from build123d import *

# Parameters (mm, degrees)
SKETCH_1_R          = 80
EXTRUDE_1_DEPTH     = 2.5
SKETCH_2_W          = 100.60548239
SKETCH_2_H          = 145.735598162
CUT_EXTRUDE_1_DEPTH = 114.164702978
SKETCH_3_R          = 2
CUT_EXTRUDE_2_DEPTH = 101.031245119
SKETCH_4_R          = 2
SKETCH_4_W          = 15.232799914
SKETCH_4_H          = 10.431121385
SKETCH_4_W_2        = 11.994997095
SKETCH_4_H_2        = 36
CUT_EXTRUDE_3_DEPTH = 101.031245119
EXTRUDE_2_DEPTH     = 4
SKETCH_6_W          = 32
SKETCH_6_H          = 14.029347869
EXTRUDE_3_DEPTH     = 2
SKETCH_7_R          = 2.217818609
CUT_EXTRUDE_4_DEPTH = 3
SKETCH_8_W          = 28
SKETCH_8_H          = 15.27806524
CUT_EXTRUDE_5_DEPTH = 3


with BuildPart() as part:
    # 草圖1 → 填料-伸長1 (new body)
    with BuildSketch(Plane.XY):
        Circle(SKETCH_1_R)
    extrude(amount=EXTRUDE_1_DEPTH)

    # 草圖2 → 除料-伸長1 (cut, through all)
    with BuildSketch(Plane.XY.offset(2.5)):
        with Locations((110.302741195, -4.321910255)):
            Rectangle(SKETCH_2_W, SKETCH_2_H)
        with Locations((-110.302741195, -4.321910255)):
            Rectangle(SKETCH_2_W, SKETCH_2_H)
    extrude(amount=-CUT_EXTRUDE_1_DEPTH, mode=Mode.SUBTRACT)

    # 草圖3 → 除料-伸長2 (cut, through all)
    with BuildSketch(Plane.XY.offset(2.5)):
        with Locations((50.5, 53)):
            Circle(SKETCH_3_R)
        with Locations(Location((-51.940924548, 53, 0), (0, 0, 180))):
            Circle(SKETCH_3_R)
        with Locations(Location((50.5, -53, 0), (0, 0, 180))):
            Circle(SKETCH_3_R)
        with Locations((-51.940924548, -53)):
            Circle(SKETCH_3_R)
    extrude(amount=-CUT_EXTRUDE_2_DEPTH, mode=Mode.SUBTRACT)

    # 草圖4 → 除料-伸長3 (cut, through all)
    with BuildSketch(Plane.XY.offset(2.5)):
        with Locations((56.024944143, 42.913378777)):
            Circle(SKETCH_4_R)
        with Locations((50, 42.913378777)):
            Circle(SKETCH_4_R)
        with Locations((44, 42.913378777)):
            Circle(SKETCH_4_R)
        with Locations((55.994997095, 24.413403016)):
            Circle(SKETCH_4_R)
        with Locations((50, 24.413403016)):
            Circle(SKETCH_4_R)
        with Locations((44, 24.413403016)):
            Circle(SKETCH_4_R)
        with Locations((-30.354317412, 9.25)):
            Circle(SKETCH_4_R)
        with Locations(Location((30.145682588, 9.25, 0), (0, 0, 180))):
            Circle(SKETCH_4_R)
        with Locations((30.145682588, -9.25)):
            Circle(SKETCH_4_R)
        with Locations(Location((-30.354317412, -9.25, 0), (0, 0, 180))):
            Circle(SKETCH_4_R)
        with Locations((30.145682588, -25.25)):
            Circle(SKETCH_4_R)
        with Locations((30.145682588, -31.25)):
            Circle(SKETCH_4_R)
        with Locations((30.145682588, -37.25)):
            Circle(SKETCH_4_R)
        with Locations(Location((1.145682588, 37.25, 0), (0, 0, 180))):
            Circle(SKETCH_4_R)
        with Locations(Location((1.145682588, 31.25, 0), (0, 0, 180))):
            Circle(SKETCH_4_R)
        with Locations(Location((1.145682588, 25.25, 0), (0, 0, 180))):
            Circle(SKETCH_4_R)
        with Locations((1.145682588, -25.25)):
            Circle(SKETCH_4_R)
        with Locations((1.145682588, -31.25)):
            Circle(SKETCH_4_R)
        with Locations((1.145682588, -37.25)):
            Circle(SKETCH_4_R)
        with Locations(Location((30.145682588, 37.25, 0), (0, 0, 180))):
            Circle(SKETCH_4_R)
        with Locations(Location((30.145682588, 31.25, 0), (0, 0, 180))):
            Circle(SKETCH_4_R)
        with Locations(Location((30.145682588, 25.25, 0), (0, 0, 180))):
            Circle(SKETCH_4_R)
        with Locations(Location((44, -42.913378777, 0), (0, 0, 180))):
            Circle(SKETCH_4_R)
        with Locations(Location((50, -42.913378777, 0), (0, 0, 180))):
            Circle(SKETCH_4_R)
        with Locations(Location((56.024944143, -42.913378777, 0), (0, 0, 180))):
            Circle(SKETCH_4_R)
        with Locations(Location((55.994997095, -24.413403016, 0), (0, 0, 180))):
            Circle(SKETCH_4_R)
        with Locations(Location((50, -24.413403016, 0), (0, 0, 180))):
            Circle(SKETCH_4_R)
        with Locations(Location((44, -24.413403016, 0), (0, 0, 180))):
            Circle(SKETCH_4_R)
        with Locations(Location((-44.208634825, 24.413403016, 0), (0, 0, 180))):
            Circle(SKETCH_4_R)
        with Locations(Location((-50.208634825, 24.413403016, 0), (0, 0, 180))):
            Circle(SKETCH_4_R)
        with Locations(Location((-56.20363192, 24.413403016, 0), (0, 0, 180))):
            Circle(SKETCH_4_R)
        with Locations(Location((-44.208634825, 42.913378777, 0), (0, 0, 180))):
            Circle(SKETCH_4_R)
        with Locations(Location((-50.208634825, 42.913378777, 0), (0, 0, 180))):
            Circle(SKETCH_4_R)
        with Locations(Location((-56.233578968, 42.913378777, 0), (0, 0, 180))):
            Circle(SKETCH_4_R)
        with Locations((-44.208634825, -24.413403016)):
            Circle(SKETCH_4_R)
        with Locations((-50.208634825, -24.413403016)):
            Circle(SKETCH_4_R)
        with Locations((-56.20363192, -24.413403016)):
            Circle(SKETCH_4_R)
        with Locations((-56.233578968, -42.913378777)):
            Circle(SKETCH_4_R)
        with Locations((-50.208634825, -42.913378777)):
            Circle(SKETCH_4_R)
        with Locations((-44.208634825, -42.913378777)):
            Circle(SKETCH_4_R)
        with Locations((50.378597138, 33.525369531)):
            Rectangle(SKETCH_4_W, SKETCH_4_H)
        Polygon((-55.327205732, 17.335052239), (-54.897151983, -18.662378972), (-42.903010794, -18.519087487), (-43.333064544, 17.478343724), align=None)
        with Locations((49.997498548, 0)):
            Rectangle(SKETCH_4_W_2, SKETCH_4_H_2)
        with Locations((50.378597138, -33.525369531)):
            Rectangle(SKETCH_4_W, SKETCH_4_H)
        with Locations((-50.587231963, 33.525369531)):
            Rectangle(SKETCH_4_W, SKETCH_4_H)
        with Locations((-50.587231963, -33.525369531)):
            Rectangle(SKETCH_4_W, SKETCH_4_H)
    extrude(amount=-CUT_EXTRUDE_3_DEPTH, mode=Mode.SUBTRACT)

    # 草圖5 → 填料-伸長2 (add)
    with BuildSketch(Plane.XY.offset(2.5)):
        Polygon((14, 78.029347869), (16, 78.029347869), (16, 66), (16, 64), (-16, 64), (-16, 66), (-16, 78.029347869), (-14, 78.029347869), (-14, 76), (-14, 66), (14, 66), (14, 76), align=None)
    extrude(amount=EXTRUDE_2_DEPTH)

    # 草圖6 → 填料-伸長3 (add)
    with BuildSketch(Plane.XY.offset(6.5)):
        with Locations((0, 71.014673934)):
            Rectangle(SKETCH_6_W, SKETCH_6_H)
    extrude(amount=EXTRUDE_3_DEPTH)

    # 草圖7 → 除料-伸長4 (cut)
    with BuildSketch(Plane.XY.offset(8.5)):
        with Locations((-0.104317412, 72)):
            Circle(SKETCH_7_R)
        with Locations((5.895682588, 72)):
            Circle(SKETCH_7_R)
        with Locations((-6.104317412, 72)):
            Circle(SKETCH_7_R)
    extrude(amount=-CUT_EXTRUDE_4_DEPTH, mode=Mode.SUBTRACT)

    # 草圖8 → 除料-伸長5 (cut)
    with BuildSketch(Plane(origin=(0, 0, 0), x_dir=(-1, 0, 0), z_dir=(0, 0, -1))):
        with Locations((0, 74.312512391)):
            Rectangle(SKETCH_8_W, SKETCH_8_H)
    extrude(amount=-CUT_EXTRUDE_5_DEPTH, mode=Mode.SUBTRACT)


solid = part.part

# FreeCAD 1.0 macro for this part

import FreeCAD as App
import Part
import Sketcher
Q = App.Units.Quantity

doc = App.newDocument("Part")
body = doc.addObject("PartDesign::Body", "Body")

# Sketch on XY plane
sketch1 = doc.addObject("Sketcher::SketchObject", "Sketch")
body.addObject(sketch1)
sketch1.AttachmentSupport = (doc.XY_Plane, [""])
sketch1.MapMode = "FlatFace"
sketch1.addGeometry(Part.Circle(App.Vector(0, 0, 0), App.Vector(0, 0, 1), 80), False)
sketch1.addConstraint([
    Sketcher.Constraint("Coincident", 0, 3, -1, 1),
    Sketcher.Constraint("Diameter", 0, Q("160 mm")),
])
pad1 = doc.addObject("PartDesign::Pad", "Pad")
body.addObject(pad1)
pad1.Profile = sketch1
pad1.Length = 2.5

# Sketch on XY plane
sketch2 = doc.addObject("Sketcher::SketchObject", "Sketch001")
body.addObject(sketch2)
sketch2.AttachmentSupport = (doc.XY_Plane, [""])
sketch2.MapMode = "FlatFace"
sketch2.AttachmentOffset = App.Placement(App.Vector(0, 0, 2.5), App.Rotation())
sketch2.addGeometry([
    Part.LineSegment(App.Vector(60, 69, 0), App.Vector(60, -77, 0)),  # 0
    Part.LineSegment(App.Vector(60, -77, 0), App.Vector(161, -77, 0)),  # 1
    Part.LineSegment(App.Vector(161, -77, 0), App.Vector(161, 69, 0)),  # 2
    Part.LineSegment(App.Vector(161, 69, 0), App.Vector(60, 69, 0)),  # 3
    Part.LineSegment(App.Vector(-161, 69, 0), App.Vector(-161, -77, 0)),  # 4
    Part.LineSegment(App.Vector(-161, -77, 0), App.Vector(-60, -77, 0)),  # 5
    Part.LineSegment(App.Vector(-60, -77, 0), App.Vector(-60, 69, 0)),  # 6
    Part.LineSegment(App.Vector(-60, 69, 0), App.Vector(-161, 69, 0)),  # 7
], False)
sketch2.addConstraint([
    Sketcher.Constraint("Coincident", 0, 2, 1, 1),
    Sketcher.Constraint("Coincident", 1, 2, 2, 1),
    Sketcher.Constraint("Coincident", 2, 2, 3, 1),
    Sketcher.Constraint("Coincident", 3, 2, 0, 1),
    Sketcher.Constraint("Coincident", 4, 2, 5, 1),
    Sketcher.Constraint("Coincident", 5, 2, 6, 1),
    Sketcher.Constraint("Coincident", 6, 2, 7, 1),
    Sketcher.Constraint("Coincident", 7, 2, 4, 1),
    Sketcher.Constraint("Vertical", 0),
    Sketcher.Constraint("Horizontal", 1),
    Sketcher.Constraint("Vertical", 2),
    Sketcher.Constraint("Horizontal", 3),
    Sketcher.Constraint("Vertical", 4),
    Sketcher.Constraint("Horizontal", 5),
    Sketcher.Constraint("Vertical", 6),
    Sketcher.Constraint("Horizontal", 7),
    Sketcher.Constraint("Symmetric", 1, 2, 4, 2, -2),
    Sketcher.Constraint("Symmetric", 3, 2, 6, 2, -2),
    Sketcher.Constraint("DistanceX", -1, 1, 0, 2, Q("60 mm")),
    Sketcher.Constraint("DistanceY", 0, 2, 0, 1, Q("145.735598 mm")),
    Sketcher.Constraint("DistanceX", 1, 1, 1, 2, Q("100.605482 mm")),
    Sketcher.Constraint("DistanceY", 0, 2, -1, 1, Q("77.189709 mm")),
])
pocket1 = doc.addObject("PartDesign::Pocket", "Pocket")
body.addObject(pocket1)
pocket1.Profile = sketch2
pocket1.Type = "ThroughAll"

# Sketch on XY plane
sketch3 = doc.addObject("Sketcher::SketchObject", "Sketch002")
body.addObject(sketch3)
sketch3.AttachmentSupport = (doc.XY_Plane, [""])
sketch3.MapMode = "FlatFace"
sketch3.AttachmentOffset = App.Placement(App.Vector(0, 0, 2.5), App.Rotation())
sketch3.addGeometry([
    Part.Circle(App.Vector(50.5, 53, 0), App.Vector(0, 0, 1), 2),
    Part.Circle(App.Vector(-51.9, 53, 0), App.Vector(0, 0, 1), 2),
    Part.Circle(App.Vector(50.5, -53, 0), App.Vector(0, 0, 1), 2),
    Part.Circle(App.Vector(-51.9, -53, 0), App.Vector(0, 0, 1), 2),
], False)
sketch3.addConstraint([
    Sketcher.Constraint("Equal", 0, 1),
    Sketcher.Constraint("Equal", 1, 2),
    Sketcher.Constraint("Equal", 2, 3),
    Sketcher.Constraint("Symmetric", 0, 3, 2, 3, -1),
    Sketcher.Constraint("Symmetric", 1, 3, 3, 3, -1),
    Sketcher.Constraint("Horizontal", 0, 3, 1, 3),
    Sketcher.Constraint("Diameter", 0, Q("4 mm")),
    Sketcher.Constraint("DistanceY", -1, 1, 0, 3, Q("53 mm")),
    Sketcher.Constraint("DistanceX", -1, 1, 0, 3, Q("50.5 mm")),
    Sketcher.Constraint("DistanceX", 1, 3, -1, 1, Q("51.940925 mm")),
])
pocket2 = doc.addObject("PartDesign::Pocket", "Pocket001")
body.addObject(pocket2)
pocket2.Profile = sketch3
pocket2.Type = "ThroughAll"

# Sketch on XY plane
sketch4 = doc.addObject("Sketcher::SketchObject", "Sketch003")
body.addObject(sketch4)
sketch4.AttachmentSupport = (doc.XY_Plane, [""])
sketch4.MapMode = "FlatFace"
sketch4.AttachmentOffset = App.Placement(App.Vector(0, 0, 2.5), App.Rotation())
sketch4.addGeometry([
    Part.Circle(App.Vector(56, 42.9, 0), App.Vector(0, 0, 1), 2),  # 0
    Part.Circle(App.Vector(50, 42.9, 0), App.Vector(0, 0, 1), 2),  # 1
    Part.Circle(App.Vector(44, 42.9, 0), App.Vector(0, 0, 1), 2),  # 2
    Part.Circle(App.Vector(56, 24.4, 0), App.Vector(0, 0, 1), 2),  # 3
    Part.Circle(App.Vector(50, 24.4, 0), App.Vector(0, 0, 1), 2),  # 4
    Part.Circle(App.Vector(44, 24.4, 0), App.Vector(0, 0, 1), 2),  # 5
    Part.Circle(App.Vector(-30.4, 9.2, 0), App.Vector(0, 0, 1), 2),  # 6
    Part.Circle(App.Vector(30.1, 9.2, 0), App.Vector(0, 0, 1), 2),  # 7
    Part.Circle(App.Vector(30.1, -9.2, 0), App.Vector(0, 0, 1), 2),  # 8
    Part.Circle(App.Vector(-30.4, -9.2, 0), App.Vector(0, 0, 1), 2),  # 9
    Part.Circle(App.Vector(30.1, -25.2, 0), App.Vector(0, 0, 1), 2),  # 10
    Part.Circle(App.Vector(30.1, -31.2, 0), App.Vector(0, 0, 1), 2),  # 11
    Part.Circle(App.Vector(30.1, -37.2, 0), App.Vector(0, 0, 1), 2),  # 12
    Part.Circle(App.Vector(1.1, 37.2, 0), App.Vector(0, 0, 1), 2),  # 13
    Part.Circle(App.Vector(1.1, 31.2, 0), App.Vector(0, 0, 1), 2),  # 14
    Part.Circle(App.Vector(1.1, 25.2, 0), App.Vector(0, 0, 1), 2),  # 15
    Part.Circle(App.Vector(1.1, -25.2, 0), App.Vector(0, 0, 1), 2),  # 16
    Part.Circle(App.Vector(1.1, -31.2, 0), App.Vector(0, 0, 1), 2),  # 17
    Part.Circle(App.Vector(1.1, -37.2, 0), App.Vector(0, 0, 1), 2),  # 18
    Part.Circle(App.Vector(30.1, 37.2, 0), App.Vector(0, 0, 1), 2),  # 19
    Part.Circle(App.Vector(30.1, 31.2, 0), App.Vector(0, 0, 1), 2),  # 20
    Part.Circle(App.Vector(30.1, 25.2, 0), App.Vector(0, 0, 1), 2),  # 21
    Part.Circle(App.Vector(44, -42.9, 0), App.Vector(0, 0, 1), 2),  # 22
    Part.Circle(App.Vector(50, -42.9, 0), App.Vector(0, 0, 1), 2),  # 23
    Part.Circle(App.Vector(56, -42.9, 0), App.Vector(0, 0, 1), 2),  # 24
    Part.Circle(App.Vector(56, -24.4, 0), App.Vector(0, 0, 1), 2),  # 25
    Part.Circle(App.Vector(50, -24.4, 0), App.Vector(0, 0, 1), 2),  # 26
    Part.Circle(App.Vector(44, -24.4, 0), App.Vector(0, 0, 1), 2),  # 27
    Part.Circle(App.Vector(-44.2, 24.4, 0), App.Vector(0, 0, 1), 2),  # 28
    Part.Circle(App.Vector(-50.2, 24.4, 0), App.Vector(0, 0, 1), 2),  # 29
    Part.Circle(App.Vector(-56.2, 24.4, 0), App.Vector(0, 0, 1), 2),  # 30
    Part.Circle(App.Vector(-44.2, 42.9, 0), App.Vector(0, 0, 1), 2),  # 31
    Part.Circle(App.Vector(-50.2, 42.9, 0), App.Vector(0, 0, 1), 2),  # 32
    Part.Circle(App.Vector(-56.2, 42.9, 0), App.Vector(0, 0, 1), 2),  # 33
    Part.Circle(App.Vector(-44.2, -24.4, 0), App.Vector(0, 0, 1), 2),  # 34
    Part.Circle(App.Vector(-50.2, -24.4, 0), App.Vector(0, 0, 1), 2),  # 35
    Part.Circle(App.Vector(-56.2, -24.4, 0), App.Vector(0, 0, 1), 2),  # 36
    Part.Circle(App.Vector(-56.2, -42.9, 0), App.Vector(0, 0, 1), 2),  # 37
    Part.Circle(App.Vector(-50.2, -42.9, 0), App.Vector(0, 0, 1), 2),  # 38
    Part.Circle(App.Vector(-44.2, -42.9, 0), App.Vector(0, 0, 1), 2),  # 39
    Part.LineSegment(App.Vector(42.8, 38.7, 0), App.Vector(42.8, 28.3, 0)),  # 40
    Part.LineSegment(App.Vector(42.8, 28.3, 0), App.Vector(58, 28.3, 0)),  # 41
    Part.LineSegment(App.Vector(58, 28.3, 0), App.Vector(58, 38.7, 0)),  # 42
    Part.LineSegment(App.Vector(58, 38.7, 0), App.Vector(42.8, 38.7, 0)),  # 43
    Part.LineSegment(App.Vector(-55.3, 17.3, 0), App.Vector(-54.9, -18.7, 0)),  # 44
    Part.LineSegment(App.Vector(-54.9, -18.7, 0), App.Vector(-42.9, -18.5, 0)),  # 45
    Part.LineSegment(App.Vector(-42.9, -18.5, 0), App.Vector(-43.3, 17.5, 0)),  # 46
    Part.LineSegment(App.Vector(-43.3, 17.5, 0), App.Vector(-55.3, 17.3, 0)),  # 47
    Part.LineSegment(App.Vector(44, 18, 0), App.Vector(44, -18, 0)),  # 48
    Part.LineSegment(App.Vector(44, -18, 0), App.Vector(56, -18, 0)),  # 49
    Part.LineSegment(App.Vector(56, -18, 0), App.Vector(56, 18, 0)),  # 50
    Part.LineSegment(App.Vector(56, 18, 0), App.Vector(44, 18, 0)),  # 51
    Part.LineSegment(App.Vector(42.8, -28.3, 0), App.Vector(42.8, -38.7, 0)),  # 52
    Part.LineSegment(App.Vector(42.8, -38.7, 0), App.Vector(58, -38.7, 0)),  # 53
    Part.LineSegment(App.Vector(58, -38.7, 0), App.Vector(58, -28.3, 0)),  # 54
    Part.LineSegment(App.Vector(58, -28.3, 0), App.Vector(42.8, -28.3, 0)),  # 55
    Part.LineSegment(App.Vector(-58.2, 38.7, 0), App.Vector(-58.2, 28.3, 0)),  # 56
    Part.LineSegment(App.Vector(-58.2, 28.3, 0), App.Vector(-43, 28.3, 0)),  # 57
    Part.LineSegment(App.Vector(-43, 28.3, 0), App.Vector(-43, 38.7, 0)),  # 58
    Part.LineSegment(App.Vector(-43, 38.7, 0), App.Vector(-58.2, 38.7, 0)),  # 59
    Part.LineSegment(App.Vector(-58.2, -28.3, 0), App.Vector(-58.2, -38.7, 0)),  # 60
    Part.LineSegment(App.Vector(-58.2, -38.7, 0), App.Vector(-43, -38.7, 0)),  # 61
    Part.LineSegment(App.Vector(-43, -38.7, 0), App.Vector(-43, -28.3, 0)),  # 62
    Part.LineSegment(App.Vector(-43, -28.3, 0), App.Vector(-58.2, -28.3, 0)),  # 63
], False)
sketch4.addConstraint([
    Sketcher.Constraint("Coincident", 40, 2, 41, 1),
    Sketcher.Constraint("Coincident", 41, 2, 42, 1),
    Sketcher.Constraint("Coincident", 42, 2, 43, 1),
    Sketcher.Constraint("Coincident", 43, 2, 40, 1),
    Sketcher.Constraint("Coincident", 44, 2, 45, 1),
    Sketcher.Constraint("Coincident", 45, 2, 46, 1),
    Sketcher.Constraint("Coincident", 46, 2, 47, 1),
    Sketcher.Constraint("Coincident", 47, 2, 44, 1),
    Sketcher.Constraint("Coincident", 48, 2, 49, 1),
    Sketcher.Constraint("Coincident", 49, 2, 50, 1),
    Sketcher.Constraint("Coincident", 50, 2, 51, 1),
    Sketcher.Constraint("Coincident", 51, 2, 48, 1),
    Sketcher.Constraint("Coincident", 52, 2, 53, 1),
    Sketcher.Constraint("Coincident", 53, 2, 54, 1),
    Sketcher.Constraint("Coincident", 54, 2, 55, 1),
    Sketcher.Constraint("Coincident", 55, 2, 52, 1),
    Sketcher.Constraint("Coincident", 56, 2, 57, 1),
    Sketcher.Constraint("Coincident", 57, 2, 58, 1),
    Sketcher.Constraint("Coincident", 58, 2, 59, 1),
    Sketcher.Constraint("Coincident", 59, 2, 56, 1),
    Sketcher.Constraint("Coincident", 60, 2, 61, 1),
    Sketcher.Constraint("Coincident", 61, 2, 62, 1),
    Sketcher.Constraint("Coincident", 62, 2, 63, 1),
    Sketcher.Constraint("Coincident", 63, 2, 60, 1),
    Sketcher.Constraint("Vertical", 40),
    Sketcher.Constraint("Horizontal", 41),
    Sketcher.Constraint("Vertical", 42),
    Sketcher.Constraint("Horizontal", 43),
    Sketcher.Constraint("Vertical", 48),
    Sketcher.Constraint("Horizontal", 49),
    Sketcher.Constraint("Vertical", 50),
    Sketcher.Constraint("Horizontal", 51),
    Sketcher.Constraint("Vertical", 52),
    Sketcher.Constraint("Horizontal", 53),
    Sketcher.Constraint("Vertical", 54),
    Sketcher.Constraint("Horizontal", 55),
    Sketcher.Constraint("Vertical", 56),
    Sketcher.Constraint("Horizontal", 57),
    Sketcher.Constraint("Vertical", 58),
    Sketcher.Constraint("Horizontal", 59),
    Sketcher.Constraint("Vertical", 60),
    Sketcher.Constraint("Horizontal", 61),
    Sketcher.Constraint("Vertical", 62),
    Sketcher.Constraint("Horizontal", 63),
    Sketcher.Constraint("Equal", 0, 1),
    Sketcher.Constraint("Equal", 1, 2),
    Sketcher.Constraint("Equal", 2, 3),
    Sketcher.Constraint("Equal", 3, 4),
    Sketcher.Constraint("Equal", 4, 5),
    Sketcher.Constraint("Equal", 5, 6),
    Sketcher.Constraint("Equal", 6, 7),
    Sketcher.Constraint("Equal", 7, 8),
    Sketcher.Constraint("Equal", 8, 9),
    Sketcher.Constraint("Equal", 9, 10),
    Sketcher.Constraint("Equal", 10, 11),
    Sketcher.Constraint("Equal", 11, 12),
    Sketcher.Constraint("Equal", 12, 13),
    Sketcher.Constraint("Equal", 13, 14),
    Sketcher.Constraint("Equal", 14, 15),
    Sketcher.Constraint("Equal", 15, 16),
    Sketcher.Constraint("Equal", 16, 17),
    Sketcher.Constraint("Equal", 17, 18),
    Sketcher.Constraint("Equal", 18, 19),
    Sketcher.Constraint("Equal", 19, 20),
    Sketcher.Constraint("Equal", 20, 21),
    Sketcher.Constraint("Equal", 21, 22),
    Sketcher.Constraint("Equal", 22, 23),
    Sketcher.Constraint("Equal", 23, 24),
    Sketcher.Constraint("Equal", 24, 25),
    Sketcher.Constraint("Equal", 25, 26),
    Sketcher.Constraint("Equal", 26, 27),
    Sketcher.Constraint("Equal", 27, 28),
    Sketcher.Constraint("Equal", 28, 29),
    Sketcher.Constraint("Equal", 29, 30),
    Sketcher.Constraint("Equal", 30, 31),
    Sketcher.Constraint("Equal", 31, 32),
    Sketcher.Constraint("Equal", 32, 33),
    Sketcher.Constraint("Equal", 33, 34),
    Sketcher.Constraint("Equal", 34, 35),
    Sketcher.Constraint("Equal", 35, 36),
    Sketcher.Constraint("Equal", 36, 37),
    Sketcher.Constraint("Equal", 37, 38),
    Sketcher.Constraint("Equal", 38, 39),
    Sketcher.Constraint("Symmetric", 7, 3, 8, 3, -1),
    Sketcher.Constraint("Symmetric", 6, 3, 9, 3, -1),
    Sketcher.Constraint("Symmetric", 15, 3, 16, 3, -1),
    Sketcher.Constraint("Symmetric", 14, 3, 17, 3, -1),
    Sketcher.Constraint("Symmetric", 13, 3, 18, 3, -1),
    Sketcher.Constraint("Symmetric", 12, 3, 19, 3, -1),
    Sketcher.Constraint("Symmetric", 11, 3, 20, 3, -1),
    Sketcher.Constraint("Symmetric", 10, 3, 21, 3, -1),
    Sketcher.Constraint("Symmetric", 2, 3, 22, 3, -1),
    Sketcher.Constraint("Symmetric", 1, 3, 23, 3, -1),
    Sketcher.Constraint("Symmetric", 0, 3, 24, 3, -1),
    Sketcher.Constraint("Symmetric", 3, 3, 25, 3, -1),
    Sketcher.Constraint("Symmetric", 4, 3, 26, 3, -1),
    Sketcher.Constraint("Symmetric", 5, 3, 27, 3, -1),
    Sketcher.Constraint("Symmetric", 28, 3, 34, 3, -1),
    Sketcher.Constraint("Symmetric", 29, 3, 35, 3, -1),
    Sketcher.Constraint("Symmetric", 30, 3, 36, 3, -1),
    Sketcher.Constraint("Symmetric", 33, 3, 37, 3, -1),
    Sketcher.Constraint("Symmetric", 32, 3, 38, 3, -1),
    Sketcher.Constraint("Symmetric", 31, 3, 39, 3, -1),
    Sketcher.Constraint("Symmetric", 43, 2, 52, 2, -1),
    Sketcher.Constraint("Symmetric", 41, 2, 54, 2, -1),
    Sketcher.Constraint("Symmetric", 59, 2, 60, 2, -1),
    Sketcher.Constraint("Symmetric", 57, 2, 62, 2, -1),
    Sketcher.Constraint("Perpendicular", 44, 45),
    Sketcher.Constraint("Perpendicular", 45, 46),
    Sketcher.Constraint("Perpendicular", 46, 47),
    Sketcher.Constraint("Horizontal", 0, 3, 1, 3),
    Sketcher.Constraint("Horizontal", 1, 3, 2, 3),
    Sketcher.Constraint("Horizontal", 3, 3, 4, 3),
    Sketcher.Constraint("Horizontal", 4, 3, 5, 3),
    Sketcher.Constraint("Horizontal", 6, 3, 7, 3),
    Sketcher.Constraint("Horizontal", 10, 3, 16, 3),
    Sketcher.Constraint("Horizontal", 11, 3, 17, 3),
    Sketcher.Constraint("Horizontal", 12, 3, 18, 3),
    Sketcher.Constraint("Horizontal", 5, 3, 28, 3),
    Sketcher.Constraint("Horizontal", 28, 3, 29, 3),
    Sketcher.Constraint("Horizontal", 29, 3, 30, 3),
    Sketcher.Constraint("Horizontal", 2, 3, 31, 3),
    Sketcher.Constraint("Horizontal", 31, 3, 32, 3),
    Sketcher.Constraint("Horizontal", 32, 3, 33, 3),
    Sketcher.Constraint("Horizontal", 41, 2, 56, 2),
    Sketcher.Constraint("Horizontal", 43, 2, 58, 2),
    Sketcher.Constraint("Vertical", 1, 3, 4, 3),
    Sketcher.Constraint("Vertical", 2, 3, 5, 3),
    Sketcher.Constraint("Vertical", 8, 3, 10, 3),
    Sketcher.Constraint("Vertical", 10, 3, 11, 3),
    Sketcher.Constraint("Vertical", 11, 3, 12, 3),
    Sketcher.Constraint("Vertical", 13, 3, 14, 3),
    Sketcher.Constraint("Vertical", 14, 3, 15, 3),
    Sketcher.Constraint("Vertical", 28, 3, 31, 3),
    Sketcher.Constraint("Vertical", 29, 3, 32, 3),
    Sketcher.Constraint("Vertical", 27, 3, 48, 2),
    Sketcher.Constraint("Vertical", 25, 3, 49, 2),
    Sketcher.Constraint("Equal", 55, 57),
    Sketcher.Constraint("Diameter", 0, Q("4 mm")),
    Sketcher.Constraint("DistanceY", 48, 2, 48, 1, Q("36 mm")),
    Sketcher.Constraint("Distance", 44, Q("36 mm")),
    Sketcher.Constraint("DistanceX", -1, 1, 1, 3, Q("50 mm")),
    Sketcher.Constraint("DistanceX", -1, 1, 2, 3, Q("44 mm")),
    Sketcher.Constraint("DistanceY", 48, 2, -1, 1, Q("18 mm")),
    Sketcher.Constraint("DistanceY", -1, 1, 6, 3, Q("9.25 mm")),
    Sketcher.Constraint("DistanceY", 10, 3, -1, 1, Q("25.25 mm")),
    Sketcher.Constraint("DistanceY", 11, 3, -1, 1, Q("31.25 mm")),
    Sketcher.Constraint("DistanceY", 12, 3, -1, 1, Q("37.25 mm")),
    Sketcher.Constraint("DistanceX", 41, 1, 41, 2, Q("15.2328 mm")),
    Sketcher.Constraint("DistanceY", 40, 2, 40, 1, Q("10.431121 mm")),
    Sketcher.Constraint("DistanceX", 49, 1, 49, 2, Q("11.994997 mm")),
    Sketcher.Constraint("DistanceY", -1, 1, 0, 3, Q("42.913379 mm")),
    Sketcher.Constraint("DistanceX", 30, 3, -1, 1, Q("56.203632 mm")),
    Sketcher.Constraint("DistanceX", 33, 3, -1, 1, Q("56.233579 mm")),
    Sketcher.Constraint("DistanceY", -1, 1, 40, 2, Q("28.309809 mm")),
    Sketcher.Constraint("DistanceX", 44, 2, -1, 1, Q("54.897152 mm")),
    Sketcher.Constraint("DistanceY", 44, 2, -1, 1, Q("18.662379 mm")),
    Sketcher.Constraint("DistanceX", 45, 2, -1, 1, Q("42.903011 mm")),
    Sketcher.Constraint("DistanceX", 56, 2, -1, 1, Q("58.203632 mm")),
    Sketcher.Constraint("DistanceX", -1, 1, 0, 3, Q("56.024944 mm")),
    Sketcher.Constraint("DistanceY", -1, 1, 3, 3, Q("24.413403 mm")),
    Sketcher.Constraint("DistanceX", 6, 3, -1, 1, Q("30.354317 mm")),
    Sketcher.Constraint("DistanceX", -1, 1, 7, 3, Q("30.145683 mm")),
    Sketcher.Constraint("DistanceX", -1, 1, 13, 3, Q("1.145683 mm")),
    Sketcher.Constraint("DistanceX", 28, 3, -1, 1, Q("44.208635 mm")),
    Sketcher.Constraint("DistanceX", 29, 3, -1, 1, Q("50.208635 mm")),
    Sketcher.Constraint("DistanceX", -1, 1, 40, 2, Q("42.762197 mm")),
    Sketcher.Constraint("DistanceY", 45, 2, -1, 1, Q("18.519087 mm")),
])
pocket3 = doc.addObject("PartDesign::Pocket", "Pocket002")
body.addObject(pocket3)
pocket3.Profile = sketch4
pocket3.Type = "ThroughAll"

# Sketch on XY plane
sketch5 = doc.addObject("Sketcher::SketchObject", "Sketch004")
body.addObject(sketch5)
sketch5.AttachmentSupport = (doc.XY_Plane, [""])
sketch5.MapMode = "FlatFace"
sketch5.AttachmentOffset = App.Placement(App.Vector(0, 0, 2.5), App.Rotation())
sketch5.addGeometry([
    Part.LineSegment(App.Vector(16, 78, 0), App.Vector(14, 78, 0)),  # 0
    Part.LineSegment(App.Vector(14, 78, 0), App.Vector(14, 66, 0)),  # 1
    Part.LineSegment(App.Vector(14, 66, 0), App.Vector(-14, 66, 0)),  # 2
    Part.LineSegment(App.Vector(-14, 66, 0), App.Vector(-14, 78, 0)),  # 3
    Part.LineSegment(App.Vector(-14, 78, 0), App.Vector(-16, 78, 0)),  # 4
    Part.LineSegment(App.Vector(-16, 78, 0), App.Vector(-16, 64, 0)),  # 5
    Part.LineSegment(App.Vector(-16, 64, 0), App.Vector(16, 64, 0)),  # 6
    Part.LineSegment(App.Vector(16, 64, 0), App.Vector(16, 78, 0)),  # 7
], False)
sketch5.addConstraint([
    Sketcher.Constraint("Coincident", 0, 2, 1, 1),
    Sketcher.Constraint("Coincident", 1, 2, 2, 1),
    Sketcher.Constraint("Coincident", 2, 2, 3, 1),
    Sketcher.Constraint("Coincident", 3, 2, 4, 1),
    Sketcher.Constraint("Coincident", 4, 2, 5, 1),
    Sketcher.Constraint("Coincident", 5, 2, 6, 1),
    Sketcher.Constraint("Coincident", 6, 2, 7, 1),
    Sketcher.Constraint("Coincident", 7, 2, 0, 1),
    Sketcher.Constraint("Horizontal", 0),
    Sketcher.Constraint("Vertical", 1),
    Sketcher.Constraint("Horizontal", 2),
    Sketcher.Constraint("Vertical", 3),
    Sketcher.Constraint("Horizontal", 4),
    Sketcher.Constraint("Vertical", 5),
    Sketcher.Constraint("Horizontal", 6),
    Sketcher.Constraint("Vertical", 7),
    Sketcher.Constraint("Symmetric", 0, 2, 3, 2, -2),
    Sketcher.Constraint("Equal", 0, 4),
    Sketcher.Constraint("DistanceX", 0, 2, 0, 1, Q("2 mm")),
    Sketcher.Constraint("DistanceX", 2, 2, 2, 1, Q("28 mm")),
    Sketcher.Constraint("DistanceY", -1, 1, 1, 2, Q("66 mm")),
    Sketcher.Constraint("DistanceY", -1, 1, 5, 2, Q("64 mm")),
    Sketcher.Constraint("DistanceY", 1, 2, 1, 1, Q("12.029348 mm")),
])
pad2 = doc.addObject("PartDesign::Pad", "Pad001")
body.addObject(pad2)
pad2.Profile = sketch5
pad2.Length = 4

# Sketch on XY plane
sketch6 = doc.addObject("Sketcher::SketchObject", "Sketch005")
body.addObject(sketch6)
sketch6.AttachmentSupport = (doc.XY_Plane, [""])
sketch6.MapMode = "FlatFace"
sketch6.AttachmentOffset = App.Placement(App.Vector(0, 0, 6.5), App.Rotation())
sketch6.addGeometry([
    Part.LineSegment(App.Vector(-16, 78, 0), App.Vector(-16, 64, 0)),
    Part.LineSegment(App.Vector(-16, 64, 0), App.Vector(16, 64, 0)),
    Part.LineSegment(App.Vector(16, 64, 0), App.Vector(16, 78, 0)),
    Part.LineSegment(App.Vector(16, 78, 0), App.Vector(-16, 78, 0)),
], False)
sketch6.addConstraint([
    Sketcher.Constraint("Coincident", 0, 2, 1, 1),
    Sketcher.Constraint("Coincident", 1, 2, 2, 1),
    Sketcher.Constraint("Coincident", 2, 2, 3, 1),
    Sketcher.Constraint("Coincident", 3, 2, 0, 1),
    Sketcher.Constraint("Vertical", 0),
    Sketcher.Constraint("Horizontal", 1),
    Sketcher.Constraint("Vertical", 2),
    Sketcher.Constraint("Horizontal", 3),
    Sketcher.Constraint("DistanceX", 1, 1, 1, 2, Q("32 mm")),
    Sketcher.Constraint("DistanceX", 0, 2, -1, 1, Q("16 mm")),
    Sketcher.Constraint("DistanceY", -1, 1, 0, 2, Q("64 mm")),
    Sketcher.Constraint("DistanceY", 0, 2, 0, 1, Q("14.029348 mm")),
])
pad3 = doc.addObject("PartDesign::Pad", "Pad002")
body.addObject(pad3)
pad3.Profile = sketch6
pad3.Length = 2

# Sketch on XY plane
sketch7 = doc.addObject("Sketcher::SketchObject", "Sketch006")
body.addObject(sketch7)
sketch7.AttachmentSupport = (doc.XY_Plane, [""])
sketch7.MapMode = "FlatFace"
sketch7.AttachmentOffset = App.Placement(App.Vector(0, 0, 8.5), App.Rotation())
sketch7.addGeometry([
    Part.Circle(App.Vector(-0.1, 72, 0), App.Vector(0, 0, 1), 2.2),
    Part.Circle(App.Vector(5.9, 72, 0), App.Vector(0, 0, 1), 2.2),
    Part.Circle(App.Vector(-6.1, 72, 0), App.Vector(0, 0, 1), 2.2),
], False)
sketch7.addConstraint([
    Sketcher.Constraint("Equal", 0, 1),
    Sketcher.Constraint("Equal", 1, 2),
    Sketcher.Constraint("Horizontal", 0, 3, 1, 3),
    Sketcher.Constraint("Horizontal", 1, 3, 2, 3),
    Sketcher.Constraint("DistanceY", -1, 1, 0, 3, Q("72 mm")),
    Sketcher.Constraint("DistanceX", 0, 3, 1, 3, Q("6 mm")),
    Sketcher.Constraint("DistanceX", 2, 3, 0, 3, Q("6 mm")),
    Sketcher.Constraint("Diameter", 0, Q("4.435637 mm")),
    Sketcher.Constraint("DistanceX", 0, 3, -1, 1, Q("0.104317 mm")),
])
pocket4 = doc.addObject("PartDesign::Pocket", "Pocket003")
body.addObject(pocket4)
pocket4.Profile = sketch7
pocket4.Length = 3

# Sketch on XY plane
sketch8 = doc.addObject("Sketcher::SketchObject", "Sketch007")
body.addObject(sketch8)
sketch8.AttachmentSupport = (doc.XY_Plane, [""])
sketch8.MapMode = "FlatFace"
sketch8.addGeometry([
    Part.LineSegment(App.Vector(14, 82, 0), App.Vector(14, 67, 0)),
    Part.LineSegment(App.Vector(14, 67, 0), App.Vector(-14, 67, 0)),
    Part.LineSegment(App.Vector(-14, 67, 0), App.Vector(-14, 82, 0)),
    Part.LineSegment(App.Vector(-14, 82, 0), App.Vector(14, 82, 0)),
], False)
sketch8.addConstraint([
    Sketcher.Constraint("Coincident", 0, 2, 1, 1),
    Sketcher.Constraint("Coincident", 1, 2, 2, 1),
    Sketcher.Constraint("Coincident", 2, 2, 3, 1),
    Sketcher.Constraint("Coincident", 3, 2, 0, 1),
    Sketcher.Constraint("Vertical", 0),
    Sketcher.Constraint("Horizontal", 1),
    Sketcher.Constraint("Vertical", 2),
    Sketcher.Constraint("Horizontal", 3),
    Sketcher.Constraint("DistanceX", 1, 2, 1, 1, Q("28 mm")),
    Sketcher.Constraint("DistanceX", -1, 1, 0, 2, Q("14 mm")),
    Sketcher.Constraint("DistanceY", 0, 2, 0, 1, Q("15.278065 mm")),
    Sketcher.Constraint("DistanceY", -1, 1, 0, 2, Q("66.67348 mm")),
])
pocket5 = doc.addObject("PartDesign::Pocket", "Pocket004")
body.addObject(pocket5)
pocket5.Profile = sketch8
pocket5.Length = 3
pocket5.Reversed = True

doc.recompute()
